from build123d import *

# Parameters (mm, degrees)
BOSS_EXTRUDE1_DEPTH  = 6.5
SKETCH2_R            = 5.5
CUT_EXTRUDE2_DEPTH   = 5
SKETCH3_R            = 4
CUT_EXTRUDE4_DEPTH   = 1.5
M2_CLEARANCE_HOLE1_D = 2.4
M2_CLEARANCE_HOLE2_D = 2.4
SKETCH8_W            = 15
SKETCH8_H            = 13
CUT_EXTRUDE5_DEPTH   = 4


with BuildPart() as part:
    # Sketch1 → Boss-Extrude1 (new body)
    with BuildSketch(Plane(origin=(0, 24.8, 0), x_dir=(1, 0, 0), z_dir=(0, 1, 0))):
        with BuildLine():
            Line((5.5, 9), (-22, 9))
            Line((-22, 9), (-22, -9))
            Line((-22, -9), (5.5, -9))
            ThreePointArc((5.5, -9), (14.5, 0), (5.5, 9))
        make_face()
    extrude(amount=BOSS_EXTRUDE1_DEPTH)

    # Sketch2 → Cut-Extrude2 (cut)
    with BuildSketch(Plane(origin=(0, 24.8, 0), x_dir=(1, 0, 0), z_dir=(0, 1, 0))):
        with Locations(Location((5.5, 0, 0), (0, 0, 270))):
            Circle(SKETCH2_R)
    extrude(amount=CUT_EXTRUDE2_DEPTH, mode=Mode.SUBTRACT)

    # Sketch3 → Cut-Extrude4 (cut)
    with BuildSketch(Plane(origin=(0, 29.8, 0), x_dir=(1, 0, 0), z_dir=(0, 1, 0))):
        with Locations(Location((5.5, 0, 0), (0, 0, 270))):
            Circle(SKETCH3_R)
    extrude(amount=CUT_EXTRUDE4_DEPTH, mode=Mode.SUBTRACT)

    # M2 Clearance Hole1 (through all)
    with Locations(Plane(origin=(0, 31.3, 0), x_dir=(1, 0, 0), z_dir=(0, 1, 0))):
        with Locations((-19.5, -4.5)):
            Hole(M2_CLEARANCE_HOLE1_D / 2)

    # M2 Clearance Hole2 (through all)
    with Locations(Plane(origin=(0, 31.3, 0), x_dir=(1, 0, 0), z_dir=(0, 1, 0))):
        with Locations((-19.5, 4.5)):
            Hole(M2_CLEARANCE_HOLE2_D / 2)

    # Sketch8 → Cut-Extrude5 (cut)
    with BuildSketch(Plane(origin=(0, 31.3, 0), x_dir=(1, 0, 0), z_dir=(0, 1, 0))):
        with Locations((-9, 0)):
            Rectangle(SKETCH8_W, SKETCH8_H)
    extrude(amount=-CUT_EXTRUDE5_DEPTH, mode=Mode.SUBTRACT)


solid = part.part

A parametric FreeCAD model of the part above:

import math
import FreeCAD as App
import Part
import Sketcher
from FreeCAD import Vector
Q = App.Units.Quantity

doc = App.newDocument("Part")
body = doc.addObject("PartDesign::Body", "Body")

# Sketch on XZ plane
sketch1 = doc.addObject("Sketcher::SketchObject", "Sketch")
body.addObject(sketch1)
sketch1.AttachmentSupport = (doc.XZ_Plane, [""])
sketch1.MapMode = "FlatFace"
sketch1.AttachmentOffset = App.Placement(Vector(0, 0, -24.8), App.Rotation())
sketch1.addGeometry(Part.LineSegment(Vector(6, -9, 0), Vector(-22, -9, 0)), False)
sketch1.addGeometry(Part.LineSegment(Vector(-22, -9, 0), Vector(-22, 9, 0)), False)
sketch1.addGeometry(Part.LineSegment(Vector(-22, 9, 0), Vector(6, 9, 0)), False)
sketch1.addGeometry(Part.ArcOfCircle(Part.Circle(Vector(6, 0, 0), Vector(0, 0, 1), 9), math.radians(-90), math.radians(90)), False)
sketch1.addConstraint(Sketcher.Constraint("Coincident", 0, 2, 1, 1))
sketch1.addConstraint(Sketcher.Constraint("Coincident", 1, 2, 2, 1))
sketch1.addConstraint(Sketcher.Constraint("Tangent", 2, 2, 3, 2))
sketch1.addConstraint(Sketcher.Constraint("Tangent", 3, 1, 0, 1))
sketch1.addConstraint(Sketcher.Constraint("Horizontal", 0))
sketch1.addConstraint(Sketcher.Constraint("Vertical", 1))
sketch1.addConstraint(Sketcher.Constraint("Horizontal", 2))
sketch1.addConstraint(Sketcher.Constraint("PointOnObject", 3, 3, -1))
sketch1.addConstraint(Sketcher.Constraint("Radius", 3, Q("9 mm")))
sketch1.addConstraint(Sketcher.Constraint("DistanceX", 0, 2, 0, 1, Q("27.5 mm")))
sketch1.addConstraint(Sketcher.Constraint("DistanceX", 0, 2, -1, 1, Q("22 mm")))
pad1 = doc.addObject("PartDesign::Pad", "Pad")
body.addObject(pad1)
pad1.Profile = sketch1
pad1.Length = 6.5
pad1.Reversed = True

# Sketch on XZ plane
sketch2 = doc.addObject("Sketcher::SketchObject", "Sketch001")
body.addObject(sketch2)
sketch2.AttachmentSupport = (doc.XZ_Plane, [""])
sketch2.MapMode = "FlatFace"
sketch2.AttachmentOffset = App.Placement(Vector(0, 0, -24.8), App.Rotation())
sketch2.addGeometry(Part.Circle(Vector(6, 0, 0), Vector(0, 0, 1), 6), False)
sketch2.addConstraint(Sketcher.Constraint("PointOnObject", 0, 3, -1))
sketch2.addConstraint(Sketcher.Constraint("Diameter", 0, Q("11 mm")))
sketch2.addConstraint(Sketcher.Constraint("DistanceX", -1, 1, 0, 3, Q("5.5 mm")))
pocket1 = doc.addObject("PartDesign::Pocket", "Pocket")
body.addObject(pocket1)
pocket1.Profile = sketch2
pocket1.Length = 5

# Sketch on XZ plane
sketch3 = doc.addObject("Sketcher::SketchObject", "Sketch002")
body.addObject(sketch3)
sketch3.AttachmentSupport = (doc.XZ_Plane, [""])
sketch3.MapMode = "FlatFace"
sketch3.AttachmentOffset = App.Placement(Vector(0, 0, -29.8), App.Rotation())
sketch3.addGeometry(Part.Circle(Vector(5.5, 0, 0), Vector(0, 0, 1), 4), False)
sketch3.addConstraint(Sketcher.Constraint("PointOnObject", 0, 3, -1))
sketch3.addConstraint(Sketcher.Constraint("Diameter", 0, Q("8 mm")))
sketch3.addConstraint(Sketcher.Constraint("DistanceX", -1, 1, 0, 3, Q("5.5 mm")))
pocket2 = doc.addObject("PartDesign::Pocket", "Pocket001")
body.addObject(pocket2)
pocket2.Profile = sketch3
pocket2.Length = 1.5

# Sketch on XZ plane
sketch4 = doc.addObject("Sketcher::SketchObject", "Sketch003")
body.addObject(sketch4)
sketch4.AttachmentSupport = (doc.XZ_Plane, [""])
sketch4.MapMode = "FlatFace"
sketch4.AttachmentOffset = App.Placement(Vector(0, 0, -31.3), App.Rotation())
sketch4.addGeometry(Part.Circle(Vector(-19.5, 4.5, 0), Vector(0, 0, 1), 1.2), False)
sketch4.addConstraint(Sketcher.Constraint("Diameter", 0, Q("2.4 mm")))
sketch4.addConstraint(Sketcher.Constraint("DistanceX", 0, 3, -1, 1, Q("19.5 mm")))
sketch4.addConstraint(Sketcher.Constraint("DistanceY", -1, 1, 0, 3, Q("4.5 mm")))
doc.recompute()
hole = doc.addObject("PartDesign::Hole", "Hole")
body.addObject(hole)
hole.Profile = sketch4
hole.ThreadType = "None"
hole.Diameter = 2.4
hole.DepthType = "ThroughAll"
hole.Reversed = True

# Sketch on XZ plane
sketch5 = doc.addObject("Sketcher::SketchObject", "Sketch004")
body.addObject(sketch5)
sketch5.AttachmentSupport = (doc.XZ_Plane, [""])
sketch5.MapMode = "FlatFace"
sketch5.AttachmentOffset = App.Placement(Vector(0, 0, -31.3), App.Rotation())
sketch5.addGeometry(Part.Circle(Vector(-19.5, -4.5, 0), Vector(0, 0, 1), 1.2), False)
sketch5.addConstraint(Sketcher.Constraint("Diameter", 0, Q("2.4 mm")))
sketch5.addConstraint(Sketcher.Constraint("DistanceX", 0, 3, -1, 1, Q("19.5 mm")))
sketch5.addConstraint(Sketcher.Constraint("DistanceY", 0, 3, -1, 1, Q("4.5 mm")))
doc.recompute()
hole2 = doc.addObject("PartDesign::Hole", "Hole001")
body.addObject(hole2)
hole2.Profile = sketch5
hole2.ThreadType = "None"
hole2.Diameter = 2.4
hole2.DepthType = "ThroughAll"
hole2.Reversed = True

# Sketch on XZ plane
sketch6 = doc.addObject("Sketcher::SketchObject", "Sketch005")
body.addObject(sketch6)
sketch6.AttachmentSupport = (doc.XZ_Plane, [""])
sketch6.MapMode = "FlatFace"
sketch6.AttachmentOffset = App.Placement(Vector(0, 0, -31.3), App.Rotation())
sketch6.addGeometry(Part.LineSegment(Vector(-16, -6, 0), Vector(-16, 6, 0)), False)
sketch6.addGeometry(Part.LineSegment(Vector(-16, 6, 0), Vector(-2, 6, 0)), False)
sketch6.addGeometry(Part.LineSegment(Vector(-2, 6, 0), Vector(-2, -6, 0)), False)
sketch6.addGeometry(Part.LineSegment(Vector(-2, -6, 0), Vector(-16, -6, 0)), False)
sketch6.addConstraint(Sketcher.Constraint("Coincident", 0, 2, 1, 1))
sketch6.addConstraint(Sketcher.Constraint("Coincident", 1, 2, 2, 1))
sketch6.addConstraint(Sketcher.Constraint("Coincident", 2, 2, 3, 1))
sketch6.addConstraint(Sketcher.Constraint("Coincident", 3, 2, 0, 1))
sketch6.addConstraint(Sketcher.Constraint("Vertical", 0))
sketch6.addConstraint(Sketcher.Constraint("Horizontal", 1))
sketch6.addConstraint(Sketcher.Constraint("Vertical", 2))
sketch6.addConstraint(Sketcher.Constraint("Horizontal", 3))
sketch6.addConstraint(Sketcher.Constraint("DistanceX", 1, 1, 1, 2, Q("15 mm")))
sketch6.addConstraint(Sketcher.Constraint("DistanceY", 0, 1, 0, 2, Q("13 mm")))
sketch6.addConstraint(Sketcher.Constraint("DistanceX", 0, 2, -1, 1, Q("16.5 mm")))
sketch6.addConstraint(Sketcher.Constraint("DistanceY", -1, 1, 0, 2, Q("6.5 mm")))
pocket3 = doc.addObject("PartDesign::Pocket", "Pocket002")
body.addObject(pocket3)
pocket3.Profile = sketch6
pocket3.Length = 4
pocket3.Reversed = True

doc.recompute()
